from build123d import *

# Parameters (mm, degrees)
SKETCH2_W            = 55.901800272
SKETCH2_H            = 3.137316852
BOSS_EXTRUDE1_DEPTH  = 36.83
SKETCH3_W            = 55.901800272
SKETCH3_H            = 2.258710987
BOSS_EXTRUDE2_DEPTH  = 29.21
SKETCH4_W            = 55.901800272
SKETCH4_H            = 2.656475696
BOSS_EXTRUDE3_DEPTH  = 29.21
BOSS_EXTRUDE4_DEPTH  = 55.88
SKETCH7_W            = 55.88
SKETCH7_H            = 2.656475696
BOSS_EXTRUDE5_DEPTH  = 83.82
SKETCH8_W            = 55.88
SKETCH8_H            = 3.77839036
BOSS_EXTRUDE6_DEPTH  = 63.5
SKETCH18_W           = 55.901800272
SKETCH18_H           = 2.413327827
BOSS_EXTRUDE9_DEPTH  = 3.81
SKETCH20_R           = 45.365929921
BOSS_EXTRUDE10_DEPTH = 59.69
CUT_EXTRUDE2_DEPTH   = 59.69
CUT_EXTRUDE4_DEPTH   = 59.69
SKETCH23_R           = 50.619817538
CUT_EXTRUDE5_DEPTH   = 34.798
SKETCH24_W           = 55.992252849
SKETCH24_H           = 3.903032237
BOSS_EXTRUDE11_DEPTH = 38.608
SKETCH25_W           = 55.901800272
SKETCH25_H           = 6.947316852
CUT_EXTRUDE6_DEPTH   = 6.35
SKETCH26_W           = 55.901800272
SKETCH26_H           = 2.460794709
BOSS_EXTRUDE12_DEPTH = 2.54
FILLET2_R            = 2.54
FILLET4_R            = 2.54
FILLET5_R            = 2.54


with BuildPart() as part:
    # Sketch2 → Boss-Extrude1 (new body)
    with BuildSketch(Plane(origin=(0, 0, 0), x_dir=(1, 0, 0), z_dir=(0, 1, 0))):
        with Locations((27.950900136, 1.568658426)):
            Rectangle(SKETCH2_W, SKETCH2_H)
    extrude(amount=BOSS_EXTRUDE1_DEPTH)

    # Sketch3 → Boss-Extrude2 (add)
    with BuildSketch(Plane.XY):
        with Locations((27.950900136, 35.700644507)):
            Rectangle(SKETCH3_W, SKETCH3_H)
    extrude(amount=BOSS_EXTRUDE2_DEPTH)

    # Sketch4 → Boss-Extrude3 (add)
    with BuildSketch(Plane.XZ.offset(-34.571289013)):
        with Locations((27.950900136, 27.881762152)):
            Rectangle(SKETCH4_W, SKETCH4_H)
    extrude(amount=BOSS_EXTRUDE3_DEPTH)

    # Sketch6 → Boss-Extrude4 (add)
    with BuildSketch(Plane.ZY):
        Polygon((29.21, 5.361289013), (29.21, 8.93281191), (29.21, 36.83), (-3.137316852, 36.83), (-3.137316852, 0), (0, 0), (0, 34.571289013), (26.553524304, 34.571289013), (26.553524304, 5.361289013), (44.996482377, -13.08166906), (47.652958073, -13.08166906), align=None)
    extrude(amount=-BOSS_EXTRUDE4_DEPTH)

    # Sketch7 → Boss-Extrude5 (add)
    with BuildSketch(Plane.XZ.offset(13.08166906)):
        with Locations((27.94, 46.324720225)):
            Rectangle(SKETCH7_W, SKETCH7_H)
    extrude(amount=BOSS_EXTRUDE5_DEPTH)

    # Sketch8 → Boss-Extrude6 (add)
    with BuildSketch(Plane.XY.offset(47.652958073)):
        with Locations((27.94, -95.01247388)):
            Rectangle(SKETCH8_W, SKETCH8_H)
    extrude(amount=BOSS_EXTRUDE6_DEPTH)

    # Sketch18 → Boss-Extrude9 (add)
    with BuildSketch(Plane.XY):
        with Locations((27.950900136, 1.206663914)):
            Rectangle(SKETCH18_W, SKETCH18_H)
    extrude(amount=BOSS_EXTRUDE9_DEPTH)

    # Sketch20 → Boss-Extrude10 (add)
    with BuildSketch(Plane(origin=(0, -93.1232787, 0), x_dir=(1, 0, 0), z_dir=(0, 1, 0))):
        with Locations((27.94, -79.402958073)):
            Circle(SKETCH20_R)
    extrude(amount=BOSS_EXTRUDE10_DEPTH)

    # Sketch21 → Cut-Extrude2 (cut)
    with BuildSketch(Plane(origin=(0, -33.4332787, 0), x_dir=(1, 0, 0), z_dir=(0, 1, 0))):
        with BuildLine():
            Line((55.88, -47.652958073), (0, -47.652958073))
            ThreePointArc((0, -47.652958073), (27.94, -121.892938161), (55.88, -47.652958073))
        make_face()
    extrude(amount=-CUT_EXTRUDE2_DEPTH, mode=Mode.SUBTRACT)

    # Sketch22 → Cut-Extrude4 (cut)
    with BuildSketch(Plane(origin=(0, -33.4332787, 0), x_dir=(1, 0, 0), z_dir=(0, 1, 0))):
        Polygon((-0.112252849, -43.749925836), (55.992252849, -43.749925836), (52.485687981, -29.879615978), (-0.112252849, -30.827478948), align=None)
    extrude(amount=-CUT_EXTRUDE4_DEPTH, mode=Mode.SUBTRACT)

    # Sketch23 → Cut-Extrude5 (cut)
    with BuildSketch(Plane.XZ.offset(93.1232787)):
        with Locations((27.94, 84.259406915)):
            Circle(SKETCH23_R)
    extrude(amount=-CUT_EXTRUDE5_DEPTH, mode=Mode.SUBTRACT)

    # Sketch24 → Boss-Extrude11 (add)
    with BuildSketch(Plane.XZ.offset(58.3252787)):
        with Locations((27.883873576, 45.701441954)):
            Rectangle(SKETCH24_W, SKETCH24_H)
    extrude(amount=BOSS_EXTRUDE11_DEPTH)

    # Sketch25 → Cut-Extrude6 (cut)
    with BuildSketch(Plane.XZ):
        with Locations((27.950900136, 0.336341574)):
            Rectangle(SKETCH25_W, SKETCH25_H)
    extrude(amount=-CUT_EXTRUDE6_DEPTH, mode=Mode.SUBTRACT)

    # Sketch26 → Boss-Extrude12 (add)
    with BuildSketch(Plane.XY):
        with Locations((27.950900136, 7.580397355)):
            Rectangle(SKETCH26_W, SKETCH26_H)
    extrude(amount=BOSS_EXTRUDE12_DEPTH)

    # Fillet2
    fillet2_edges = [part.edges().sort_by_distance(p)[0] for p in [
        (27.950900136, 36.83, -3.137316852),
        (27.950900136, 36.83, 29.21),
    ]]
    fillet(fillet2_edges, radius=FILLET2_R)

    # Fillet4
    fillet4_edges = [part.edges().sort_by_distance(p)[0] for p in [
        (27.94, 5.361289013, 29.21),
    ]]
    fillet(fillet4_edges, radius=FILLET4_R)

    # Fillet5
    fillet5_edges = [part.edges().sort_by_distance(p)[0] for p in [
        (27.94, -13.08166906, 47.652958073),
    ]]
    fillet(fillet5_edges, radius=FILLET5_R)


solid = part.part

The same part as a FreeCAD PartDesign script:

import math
import FreeCAD as App
import Part
import Sketcher
from FreeCAD import Vector
Q = App.Units.Quantity


def edges_at(feature, points):
    """Names of the edges that pass closest to the given points."""
    edges = feature.Shape.Edges
    near = lambda p: min(range(len(edges)), key=lambda i: edges[i].distToShape(Part.Vertex(*p))[0])
    return sorted({f"Edge{near(p) + 1}" for p in points})


def add_polygon(sketch, points):
    """Adds a closed chain of lines whose ends are joined by coincident constraints."""
    first, n = sketch.GeometryCount, len(points)
    for a, b in zip(points, points[1:] + points[:1]):
        sketch.addGeometry(Part.LineSegment(App.Vector(*a, 0), App.Vector(*b, 0)), False)
    for i in range(n):
        sketch.addConstraint(Sketcher.Constraint("Coincident", first + i, 2, first + (i + 1) % n, 1))

doc = App.newDocument("Part")
body = doc.addObject("PartDesign::Body", "Body")
body.AllowCompound = True

# Sketch on XZ plane
sketch1 = body.newObject("Sketcher::SketchObject", "Sketch")
sketch1.AttachmentSupport = (doc.getObject("XZ_Plane"), [""])
sketch1.MapMode = "FlatFace"
add_polygon(sketch1, [(0, -3.1), (0, 0), (55.9, 0), (55.9, -3.1)])  # lines 0-3
sketch1.addConstraint(Sketcher.Constraint("Vertical", 0))
sketch1.addConstraint(Sketcher.Constraint("Horizontal", 1))
sketch1.addConstraint(Sketcher.Constraint("Vertical", 2))
sketch1.addConstraint(Sketcher.Constraint("Horizontal", 3))
sketch1.addConstraint(Sketcher.Constraint("Coincident", 0, 2, -1, 1))
sketch1.addConstraint(Sketcher.Constraint("DistanceX", 1, 1, 1, 2, Q("55.9018 mm")))
sketch1.addConstraint(Sketcher.Constraint("DistanceY", 0, 1, 0, 2, Q("3.137317 mm")))
pad1 = body.newObject("PartDesign::Pad", "Pad")
pad1.Profile = sketch1
pad1.Length = Q("1.45 in")
pad1.Reversed = True

# Sketch on XY plane
sketch2 = body.newObject("Sketcher::SketchObject", "Sketch001")
sketch2.AttachmentSupport = (doc.getObject("XY_Plane"), [""])
sketch2.MapMode = "FlatFace"
add_polygon(sketch2, [(0, 36.8), (0, 34.6), (55.9, 34.6), (55.9, 36.8)])  # lines 0-3
sketch2.addConstraint(Sketcher.Constraint("Vertical", 0))
sketch2.addConstraint(Sketcher.Constraint("Horizontal", 1))
sketch2.addConstraint(Sketcher.Constraint("Vertical", 2))
sketch2.addConstraint(Sketcher.Constraint("Horizontal", 3))
sketch2.addConstraint(Sketcher.Constraint("PointOnObject", 0, 2, -2))
sketch2.addConstraint(Sketcher.Constraint("DistanceY", -1, 1, 2, 2, Q("1.45 in")))
sketch2.addConstraint(Sketcher.Constraint("DistanceX", 1, 1, 1, 2, Q("55.9018 mm")))
sketch2.addConstraint(Sketcher.Constraint("DistanceY", 0, 2, 0, 1, Q("2.258711 mm")))
pad2 = body.newObject("PartDesign::Pad", "Pad001")
pad2.Profile = sketch2
pad2.Length = Q("1.15 in")

# Sketch on XZ plane
sketch3 = body.newObject("Sketcher::SketchObject", "Sketch002")
sketch3.AttachmentSupport = (doc.getObject("XZ_Plane"), [""])
sketch3.MapMode = "FlatFace"
sketch3.AttachmentOffset = App.Placement(Vector(0, 0, -34.571289), App.Rotation())
add_polygon(sketch3, [(0, 29.2), (0, 26.6), (55.9, 26.6), (55.9, 29.2)])  # lines 0-3
sketch3.addConstraint(Sketcher.Constraint("Vertical", 0))
sketch3.addConstraint(Sketcher.Constraint("Horizontal", 1))
sketch3.addConstraint(Sketcher.Constraint("Vertical", 2))
sketch3.addConstraint(Sketcher.Constraint("Horizontal", 3))
sketch3.addConstraint(Sketcher.Constraint("PointOnObject", 0, 2, -2))
sketch3.addConstraint(Sketcher.Constraint("DistanceY", -1, 1, 2, 2, Q("1.15 in")))
sketch3.addConstraint(Sketcher.Constraint("DistanceX", 1, 1, 1, 2, Q("55.9018 mm")))
sketch3.addConstraint(Sketcher.Constraint("DistanceY", 0, 2, 0, 1, Q("2.656476 mm")))
pad3 = body.newObject("PartDesign::Pad", "Pad002")
pad3.Profile = sketch3
pad3.Length = Q("1.15 in")

# Sketch on YZ plane
sketch4 = body.newObject("Sketcher::SketchObject", "Sketch003")
sketch4.AttachmentSupport = (doc.getObject("YZ_Plane"), [""])
sketch4.MapMode = "FlatFace"
add_polygon(sketch4, [(5.4, 29.2), (36.8, 29.2), (36.8, -3.1), (0, -3.1), (0, 0), (34.6, 0), (34.6, 26.6), (5.4, 26.6), (-13.1, 45), (-13.1, 47.7)])  # lines 0-9
sketch4.addConstraint(Sketcher.Constraint("Horizontal", 0))
sketch4.addConstraint(Sketcher.Constraint("Vertical", 1))
sketch4.addConstraint(Sketcher.Constraint("Horizontal", 2))
sketch4.addConstraint(Sketcher.Constraint("Vertical", 3))
sketch4.addConstraint(Sketcher.Constraint("Horizontal", 4))
sketch4.addConstraint(Sketcher.Constraint("Vertical", 5))
sketch4.addConstraint(Sketcher.Constraint("Horizontal", 6))
sketch4.addConstraint(Sketcher.Constraint("Vertical", 8))
sketch4.addConstraint(Sketcher.Constraint("Coincident", 3, 2, -1, 1))
sketch4.addConstraint(Sketcher.Constraint("Parallel", 7, 9))
sketch4.addConstraint(Sketcher.Constraint("Vertical", 6, 2, 9, 2))
sketch4.addConstraint(Sketcher.Constraint("Angle", 7, Q("135 deg")))
sketch4.addConstraint(Sketcher.Constraint("DistanceX", 2, 2, 2, 1, Q("1.45 in")))
sketch4.addConstraint(Sketcher.Constraint("DistanceX", 6, 2, 6, 1, Q("1.15 in")))
sketch4.addConstraint(Sketcher.Constraint("DistanceY", -1, 1, 0, 2, Q("1.15 in")))
sketch4.addConstraint(Sketcher.Constraint("DistanceX", 0, 1, 0, 2, Q("31.468711 mm")))
sketch4.addConstraint(Sketcher.Constraint("DistanceY", 2, 2, 7, 2, Q("48.133799 mm")))
sketch4.addConstraint(Sketcher.Constraint("Distance", 7, Q("26.082281 mm")))
sketch4.addConstraint(Sketcher.Constraint("DistanceY", 1, 2, 1, 1, Q("32.347317 mm")))
pad4 = body.newObject("PartDesign::Pad", "Pad003")
pad4.Profile = sketch4
pad4.Length = Q("2.2 in")

# Sketch on XZ plane
sketch5 = body.newObject("Sketcher::SketchObject", "Sketch004")
sketch5.AttachmentSupport = (doc.getObject("XZ_Plane"), [""])
sketch5.MapMode = "FlatFace"
sketch5.AttachmentOffset = App.Placement(Vector(0, 0, 13.081669), App.Rotation())
add_polygon(sketch5, [(0, 47.7), (0, 45), (55.9, 45), (55.9, 47.7)])  # lines 0-3
sketch5.addConstraint(Sketcher.Constraint("Vertical", 0))
sketch5.addConstraint(Sketcher.Constraint("Horizontal", 1))
sketch5.addConstraint(Sketcher.Constraint("Vertical", 2))
sketch5.addConstraint(Sketcher.Constraint("Horizontal", 3))
sketch5.addConstraint(Sketcher.Constraint("PointOnObject", 0, 2, -2))
sketch5.addConstraint(Sketcher.Constraint("DistanceX", 1, 1, 1, 2, Q("2.2 in")))
sketch5.addConstraint(Sketcher.Constraint("DistanceY", 0, 2, 0, 1, Q("2.656476 mm")))
sketch5.addConstraint(Sketcher.Constraint("DistanceY", -1, 1, 2, 2, Q("47.652958 mm")))
pad5 = body.newObject("PartDesign::Pad", "Pad004")
pad5.Profile = sketch5
pad5.Length = Q("3.3 in")

# Sketch on XY plane
sketch6 = body.newObject("Sketcher::SketchObject", "Sketch005")
sketch6.AttachmentSupport = (doc.getObject("XY_Plane"), [""])
sketch6.MapMode = "FlatFace"
sketch6.AttachmentOffset = App.Placement(Vector(0, 0, 47.652958), App.Rotation())
add_polygon(sketch6, [(0, -93.1), (0, -96.9), (55.9, -96.9), (55.9, -93.1)])  # lines 0-3
sketch6.addConstraint(Sketcher.Constraint("Vertical", 0))
sketch6.addConstraint(Sketcher.Constraint("Horizontal", 1))
sketch6.addConstraint(Sketcher.Constraint("Vertical", 2))
sketch6.addConstraint(Sketcher.Constraint("Horizontal", 3))
sketch6.addConstraint(Sketcher.Constraint("PointOnObject", 0, 2, -2))
sketch6.addConstraint(Sketcher.Constraint("DistanceX", 1, 1, 1, 2, Q("2.2 in")))
sketch6.addConstraint(Sketcher.Constraint("DistanceY", 0, 2, 0, 1, Q("3.77839 mm")))
sketch6.addConstraint(Sketcher.Constraint("DistanceY", 0, 2, -1, 1, Q("96.901669 mm")))
pad6 = body.newObject("PartDesign::Pad", "Pad005")
pad6.Profile = sketch6
pad6.Length = Q("2.5 in")

# Sketch on XY plane
sketch7 = body.newObject("Sketcher::SketchObject", "Sketch006")
sketch7.AttachmentSupport = (doc.getObject("XY_Plane"), [""])
sketch7.MapMode = "FlatFace"
add_polygon(sketch7, [(0, 2.4), (0, 0), (55.9, 0), (55.9, 2.4)])  # lines 0-3
sketch7.addConstraint(Sketcher.Constraint("Vertical", 0))
sketch7.addConstraint(Sketcher.Constraint("Horizontal", 1))
sketch7.addConstraint(Sketcher.Constraint("Vertical", 2))
sketch7.addConstraint(Sketcher.Constraint("Horizontal", 3))
sketch7.addConstraint(Sketcher.Constraint("Coincident", 0, 2, -1, 1))
sketch7.addConstraint(Sketcher.Constraint("DistanceX", 1, 1, 1, 2, Q("55.9018 mm")))
sketch7.addConstraint(Sketcher.Constraint("DistanceY", 0, 2, 0, 1, Q("2.413328 mm")))
pad7 = body.newObject("PartDesign::Pad", "Pad006")
pad7.Profile = sketch7
pad7.Length = Q("0.15 in")

# Sketch on XZ plane
sketch8 = body.newObject("Sketcher::SketchObject", "Sketch007")
sketch8.AttachmentSupport = (doc.getObject("XZ_Plane"), [""])
sketch8.MapMode = "FlatFace"
sketch8.AttachmentOffset = App.Placement(Vector(0, 0, 93.123279), App.Rotation())
sketch8.addGeometry(Part.Circle(Vector(28, 79, 0), Vector(0, 0, 1), 45), False)
sketch8.addConstraint(Sketcher.Constraint("DistanceX", -1, 1, 0, 3, Q("1.1 in")))
sketch8.addConstraint(Sketcher.Constraint("Diameter", 0, Q("90.73186 mm")))
sketch8.addConstraint(Sketcher.Constraint("DistanceY", -1, 1, 0, 3, Q("79.402958 mm")))
pad8 = body.newObject("PartDesign::Pad", "Pad007")
pad8.Profile = sketch8
pad8.Length = Q("2.35 in")
pad8.Reversed = True

# Sketch on XZ plane
sketch9 = body.newObject("Sketcher::SketchObject", "Sketch008")
sketch9.AttachmentSupport = (doc.getObject("XZ_Plane"), [""])
sketch9.MapMode = "FlatFace"
sketch9.AttachmentOffset = App.Placement(Vector(0, 0, 33.433279), App.Rotation())
sketch9.addGeometry(Part.LineSegment(Vector(56, 48, 0), Vector(0, 48, 0)), False)
sketch9.addGeometry(Part.ArcOfCircle(Part.Circle(Vector(28, 80, 0), Vector(0, 0, 1), 42), math.radians(-49), math.radians(229)), False)
sketch9.addConstraint(Sketcher.Constraint("Coincident", 0, 1, 1, 1))
sketch9.addConstraint(Sketcher.Constraint("Coincident", 1, 2, 0, 2))
sketch9.addConstraint(Sketcher.Constraint("Horizontal", 0))
sketch9.addConstraint(Sketcher.Constraint("PointOnObject", 1, 2, -2))
sketch9.addConstraint(Sketcher.Constraint("DistanceX", 0, 2, 0, 1, Q("2.2 in")))
sketch9.addConstraint(Sketcher.Constraint("Radius", 1, Q("42.377559 mm")))
sketch9.addConstraint(Sketcher.Constraint("DistanceY", -1, 1, 1, 3, Q("79.515379 mm")))
pocket1 = body.newObject("PartDesign::Pocket", "Pocket")
pocket1.Profile = sketch9
pocket1.Length = Q("2.35 in")
pocket1.Reversed = True

# Sketch on XZ plane
sketch10 = body.newObject("Sketcher::SketchObject", "Sketch009")
sketch10.AttachmentSupport = (doc.getObject("XZ_Plane"), [""])
sketch10.MapMode = "FlatFace"
sketch10.AttachmentOffset = App.Placement(Vector(0, 0, 33.433279), App.Rotation())
add_polygon(sketch10, [(0, 44), (56, 44), (52, 30), (0, 31)])  # lines 0-3
sketch10.addConstraint(Sketcher.Constraint("Horizontal", 0))
sketch10.addConstraint(Sketcher.Constraint("Vertical", 3))
sketch10.addConstraint(Sketcher.Constraint("Distance", 2, Q("52.606481 mm")))
sketch10.addConstraint(Sketcher.Constraint("DistanceX", 0, 1, 0, 2, Q("56.104506 mm")))
sketch10.addConstraint(Sketcher.Constraint("DistanceY", 3, 1, 3, 2, Q("12.922447 mm")))
sketch10.addConstraint(Sketcher.Constraint("DistanceY", -1, 1, 2, 2, Q("30.827479 mm")))
sketch10.addConstraint(Sketcher.Constraint("DistanceY", 1, 2, 0, 2, Q("13.87031 mm")))
sketch10.addConstraint(Sketcher.Constraint("DistanceX", -1, 1, 0, 2, Q("55.992253 mm")))
pocket2 = body.newObject("PartDesign::Pocket", "Pocket001")
pocket2.Profile = sketch10
pocket2.Length = Q("2.35 in")
pocket2.Reversed = True

# Sketch on XZ plane
sketch11 = body.newObject("Sketcher::SketchObject", "Sketch010")
sketch11.AttachmentSupport = (doc.getObject("XZ_Plane"), [""])
sketch11.MapMode = "FlatFace"
sketch11.AttachmentOffset = App.Placement(Vector(0, 0, 93.123279), App.Rotation())
sketch11.addGeometry(Part.Circle(Vector(28, 84, 0), Vector(0, 0, 1), 51), False)
sketch11.addConstraint(Sketcher.Constraint("DistanceX", -1, 1, 0, 3, Q("1.1 in")))
sketch11.addConstraint(Sketcher.Constraint("Diameter", 0, Q("101.239635 mm")))
sketch11.addConstraint(Sketcher.Constraint("DistanceY", -1, 1, 0, 3, Q("84.259407 mm")))
pocket3 = body.newObject("PartDesign::Pocket", "Pocket002")
pocket3.Profile = sketch11
pocket3.Length = Q("1.37 in")

# Sketch on XZ plane
sketch12 = body.newObject("Sketcher::SketchObject", "Sketch011")
sketch12.AttachmentSupport = (doc.getObject("XZ_Plane"), [""])
sketch12.MapMode = "FlatFace"
sketch12.AttachmentOffset = App.Placement(Vector(0, 0, 58.325279), App.Rotation())
add_polygon(sketch12, [(-0.1, 47.7), (-0.1, 43.7), (55.9, 43.7), (55.9, 47.7)])  # lines 0-3
sketch12.addConstraint(Sketcher.Constraint("Vertical", 0))
sketch12.addConstraint(Sketcher.Constraint("Horizontal", 1))
sketch12.addConstraint(Sketcher.Constraint("Vertical", 2))
sketch12.addConstraint(Sketcher.Constraint("Horizontal", 3))
sketch12.addConstraint(Sketcher.Constraint("DistanceX", -1, 1, 1, 2, Q("2.2 in")))
sketch12.addConstraint(Sketcher.Constraint("DistanceX", 1, 1, 1, 2, Q("55.992253 mm")))
sketch12.addConstraint(Sketcher.Constraint("DistanceY", 0, 2, 0, 1, Q("3.903032 mm")))
sketch12.addConstraint(Sketcher.Constraint("DistanceY", -1, 1, 2, 2, Q("47.652958 mm")))
pad9 = body.newObject("PartDesign::Pad", "Pad008")
pad9.Profile = sketch12
pad9.Length = Q("1.52 in")

# Sketch on XZ plane
sketch13 = body.newObject("Sketcher::SketchObject", "Sketch012")
sketch13.AttachmentSupport = (doc.getObject("XZ_Plane"), [""])
sketch13.MapMode = "FlatFace"
add_polygon(sketch13, [(0, 4), (0, -3), (56, -3), (56, 4)])  # lines 0-3
sketch13.addConstraint(Sketcher.Constraint("Vertical", 0))
sketch13.addConstraint(Sketcher.Constraint("Horizontal", 1))
sketch13.addConstraint(Sketcher.Constraint("Vertical", 2))
sketch13.addConstraint(Sketcher.Constraint("Horizontal", 3))
sketch13.addConstraint(Sketcher.Constraint("PointOnObject", 0, 2, -2))
sketch13.addConstraint(Sketcher.Constraint("DistanceY", -1, 1, 2, 2, Q("0.15 in")))
sketch13.addConstraint(Sketcher.Constraint("DistanceX", 1, 1, 1, 2, Q("55.9018 mm")))
sketch13.addConstraint(Sketcher.Constraint("DistanceY", 0, 2, 0, 1, Q("6.947317 mm")))
pocket4 = body.newObject("PartDesign::Pocket", "Pocket003")
pocket4.Profile = sketch13
pocket4.Length = Q("0.25 in")

# Sketch on XY plane
sketch14 = body.newObject("Sketcher::SketchObject", "Sketch013")
sketch14.AttachmentSupport = (doc.getObject("XY_Plane"), [""])
sketch14.MapMode = "FlatFace"
add_polygon(sketch14, [(0, 8.8), (0, 6.3), (55.9, 6.3), (55.9, 8.8)])  # lines 0-3
sketch14.addConstraint(Sketcher.Constraint("Vertical", 0))
sketch14.addConstraint(Sketcher.Constraint("Horizontal", 1))
sketch14.addConstraint(Sketcher.Constraint("Vertical", 2))
sketch14.addConstraint(Sketcher.Constraint("Horizontal", 3))
sketch14.addConstraint(Sketcher.Constraint("PointOnObject", 0, 2, -2))
sketch14.addConstraint(Sketcher.Constraint("DistanceY", -1, 1, 0, 2, Q("0.25 in")))
sketch14.addConstraint(Sketcher.Constraint("DistanceX", 1, 1, 1, 2, Q("55.9018 mm")))
sketch14.addConstraint(Sketcher.Constraint("DistanceY", 0, 2, 0, 1, Q("2.460795 mm")))
pad10 = body.newObject("PartDesign::Pad", "Pad009")
pad10.Profile = sketch14
pad10.Length = Q("0.1 in")
doc.recompute()

fillet = body.newObject("PartDesign::Fillet", "Fillet")
fillet.Base = (pad10, edges_at(pad10, [(27.951, 36.83, -3.137), (27.951, 36.83, 29.21)]))
fillet.Radius = Q("0.1 in")
doc.recompute()

fillet2 = body.newObject("PartDesign::Fillet", "Fillet001")
fillet2.Base = (fillet, edges_at(fillet, [(27.94, 5.361, 29.21)]))
fillet2.Radius = Q("0.1 in")
doc.recompute()

fillet3 = body.newObject("PartDesign::Fillet", "Fillet002")
fillet3.Base = (fillet2, edges_at(fillet2, [(27.94, -13.082, 47.653)]))
fillet3.Radius = Q("0.1 in")

doc.recompute()
